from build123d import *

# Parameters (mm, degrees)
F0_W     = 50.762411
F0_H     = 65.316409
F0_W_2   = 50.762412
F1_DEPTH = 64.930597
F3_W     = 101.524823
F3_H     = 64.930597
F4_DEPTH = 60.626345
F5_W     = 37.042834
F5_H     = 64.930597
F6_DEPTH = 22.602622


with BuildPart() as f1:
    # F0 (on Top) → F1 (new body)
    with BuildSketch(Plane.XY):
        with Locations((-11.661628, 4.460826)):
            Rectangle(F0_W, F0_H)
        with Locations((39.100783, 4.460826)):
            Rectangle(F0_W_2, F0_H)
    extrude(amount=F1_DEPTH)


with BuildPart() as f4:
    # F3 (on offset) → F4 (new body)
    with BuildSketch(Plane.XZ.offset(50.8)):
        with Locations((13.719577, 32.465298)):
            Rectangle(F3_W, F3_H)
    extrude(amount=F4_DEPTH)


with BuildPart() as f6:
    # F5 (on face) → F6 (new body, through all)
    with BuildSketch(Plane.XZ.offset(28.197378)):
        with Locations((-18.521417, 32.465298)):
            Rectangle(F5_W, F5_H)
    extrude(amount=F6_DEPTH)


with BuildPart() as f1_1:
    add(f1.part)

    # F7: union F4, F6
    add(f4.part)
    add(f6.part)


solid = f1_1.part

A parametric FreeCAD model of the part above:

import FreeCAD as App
import Part
import Sketcher
from FreeCAD import Vector
Q = App.Units.Quantity


def add_polygon(sketch, points):
    """Adds a closed chain of lines whose ends are joined by coincident constraints."""
    first, n = sketch.GeometryCount, len(points)
    for a, b in zip(points, points[1:] + points[:1]):
        sketch.addGeometry(Part.LineSegment(App.Vector(*a, 0), App.Vector(*b, 0)), False)
    for i in range(n):
        sketch.addConstraint(Sketcher.Constraint("Coincident", first + i, 2, first + (i + 1) % n, 1))

doc = App.newDocument("Part")
body = doc.addObject("PartDesign::Body", "Body")

# Sketch on XY plane
sketch1 = body.newObject("Sketcher::SketchObject", "Sketch")
sketch1.AttachmentSupport = (doc.getObject("XY_Plane"), [""])
sketch1.MapMode = "FlatFace"
add_polygon(sketch1, [(-37, 37), (-37, -28), (64, -28), (64, 37)])  # lines 0-3
sketch1.addConstraint(Sketcher.Constraint("Vertical", 0))
sketch1.addConstraint(Sketcher.Constraint("Horizontal", 1))
sketch1.addConstraint(Sketcher.Constraint("Vertical", 2))
sketch1.addConstraint(Sketcher.Constraint("Horizontal", 3))
sketch1.addConstraint(Sketcher.Constraint("DistanceY", 0, 2, 0, 1, Q("65.316409 mm")))
sketch1.addConstraint(Sketcher.Constraint("DistanceX", 1, 1, 1, 2, Q("101.524822 mm")))
sketch1.addConstraint(Sketcher.Constraint("DistanceY", 0, 2, -1, 1, Q("28.197378 mm")))
sketch1.addConstraint(Sketcher.Constraint("DistanceX", -1, 1, 1, 2, Q("64.481989 mm")))
pad1 = body.newObject("PartDesign::Pad", "Pad")
pad1.Profile = sketch1
pad1.Length = 64.930597
body2 = doc.addObject("PartDesign::Body", "Body001")

# Sketch on XZ plane
sketch2 = body2.newObject("Sketcher::SketchObject", "Sketch001")
sketch2.AttachmentSupport = (doc.getObject("XZ_Plane001"), [""])
sketch2.MapMode = "FlatFace"
sketch2.AttachmentOffset = App.Placement(Vector(0, 0, 50.8), App.Rotation())
add_polygon(sketch2, [(-37, 65), (-37, 0), (64, 0), (64, 65)])  # lines 0-3
sketch2.addConstraint(Sketcher.Constraint("Vertical", 0))
sketch2.addConstraint(Sketcher.Constraint("Horizontal", 1))
sketch2.addConstraint(Sketcher.Constraint("Vertical", 2))
sketch2.addConstraint(Sketcher.Constraint("Horizontal", 3))
sketch2.addConstraint(Sketcher.Constraint("PointOnObject", 0, 2, -1))
sketch2.addConstraint(Sketcher.Constraint("DistanceX", 1, 1, 1, 2, Q("101.524823 mm")))
sketch2.addConstraint(Sketcher.Constraint("DistanceY", 0, 2, 0, 1, Q("64.930597 mm")))
sketch2.addConstraint(Sketcher.Constraint("DistanceX", -1, 1, 1, 2, Q("64.481988 mm")))
pad2 = body2.newObject("PartDesign::Pad", "Pad001")
pad2.Profile = sketch2
pad2.Length = 60.626345
body3 = doc.addObject("PartDesign::Body", "Body002")

# Sketch on XZ plane
sketch3 = body3.newObject("Sketcher::SketchObject", "Sketch002")
sketch3.AttachmentSupport = (doc.getObject("XZ_Plane002"), [""])
sketch3.MapMode = "FlatFace"
sketch3.AttachmentOffset = App.Placement(Vector(0, 0, 28.197378), App.Rotation())
add_polygon(sketch3, [(-37, 65), (-37, 0), (0, 0), (0, 65)])  # lines 0-3
sketch3.addConstraint(Sketcher.Constraint("Vertical", 0))
sketch3.addConstraint(Sketcher.Constraint("Horizontal", 1))
sketch3.addConstraint(Sketcher.Constraint("Vertical", 2))
sketch3.addConstraint(Sketcher.Constraint("Horizontal", 3))
sketch3.addConstraint(Sketcher.Constraint("Coincident", 1, 2, -1, 1))
sketch3.addConstraint(Sketcher.Constraint("DistanceX", 1, 1, 1, 2, Q("37.042834 mm")))
sketch3.addConstraint(Sketcher.Constraint("DistanceY", 0, 2, 0, 1, Q("64.930597 mm")))
pad3 = body3.newObject("PartDesign::Pad", "Pad002")
pad3.Profile = sketch3
pad3.Length = 22.602622
body.AllowCompound = True
doc.recompute()

boolean = body.newObject("PartDesign::Boolean", "Boolean")
boolean.Type = "Fuse"
boolean.addObjects([body2])
doc.recompute()

boolean2 = body.newObject("PartDesign::Boolean", "Boolean001")
boolean2.Type = "Fuse"
boolean2.addObjects([body3])

doc.recompute()
